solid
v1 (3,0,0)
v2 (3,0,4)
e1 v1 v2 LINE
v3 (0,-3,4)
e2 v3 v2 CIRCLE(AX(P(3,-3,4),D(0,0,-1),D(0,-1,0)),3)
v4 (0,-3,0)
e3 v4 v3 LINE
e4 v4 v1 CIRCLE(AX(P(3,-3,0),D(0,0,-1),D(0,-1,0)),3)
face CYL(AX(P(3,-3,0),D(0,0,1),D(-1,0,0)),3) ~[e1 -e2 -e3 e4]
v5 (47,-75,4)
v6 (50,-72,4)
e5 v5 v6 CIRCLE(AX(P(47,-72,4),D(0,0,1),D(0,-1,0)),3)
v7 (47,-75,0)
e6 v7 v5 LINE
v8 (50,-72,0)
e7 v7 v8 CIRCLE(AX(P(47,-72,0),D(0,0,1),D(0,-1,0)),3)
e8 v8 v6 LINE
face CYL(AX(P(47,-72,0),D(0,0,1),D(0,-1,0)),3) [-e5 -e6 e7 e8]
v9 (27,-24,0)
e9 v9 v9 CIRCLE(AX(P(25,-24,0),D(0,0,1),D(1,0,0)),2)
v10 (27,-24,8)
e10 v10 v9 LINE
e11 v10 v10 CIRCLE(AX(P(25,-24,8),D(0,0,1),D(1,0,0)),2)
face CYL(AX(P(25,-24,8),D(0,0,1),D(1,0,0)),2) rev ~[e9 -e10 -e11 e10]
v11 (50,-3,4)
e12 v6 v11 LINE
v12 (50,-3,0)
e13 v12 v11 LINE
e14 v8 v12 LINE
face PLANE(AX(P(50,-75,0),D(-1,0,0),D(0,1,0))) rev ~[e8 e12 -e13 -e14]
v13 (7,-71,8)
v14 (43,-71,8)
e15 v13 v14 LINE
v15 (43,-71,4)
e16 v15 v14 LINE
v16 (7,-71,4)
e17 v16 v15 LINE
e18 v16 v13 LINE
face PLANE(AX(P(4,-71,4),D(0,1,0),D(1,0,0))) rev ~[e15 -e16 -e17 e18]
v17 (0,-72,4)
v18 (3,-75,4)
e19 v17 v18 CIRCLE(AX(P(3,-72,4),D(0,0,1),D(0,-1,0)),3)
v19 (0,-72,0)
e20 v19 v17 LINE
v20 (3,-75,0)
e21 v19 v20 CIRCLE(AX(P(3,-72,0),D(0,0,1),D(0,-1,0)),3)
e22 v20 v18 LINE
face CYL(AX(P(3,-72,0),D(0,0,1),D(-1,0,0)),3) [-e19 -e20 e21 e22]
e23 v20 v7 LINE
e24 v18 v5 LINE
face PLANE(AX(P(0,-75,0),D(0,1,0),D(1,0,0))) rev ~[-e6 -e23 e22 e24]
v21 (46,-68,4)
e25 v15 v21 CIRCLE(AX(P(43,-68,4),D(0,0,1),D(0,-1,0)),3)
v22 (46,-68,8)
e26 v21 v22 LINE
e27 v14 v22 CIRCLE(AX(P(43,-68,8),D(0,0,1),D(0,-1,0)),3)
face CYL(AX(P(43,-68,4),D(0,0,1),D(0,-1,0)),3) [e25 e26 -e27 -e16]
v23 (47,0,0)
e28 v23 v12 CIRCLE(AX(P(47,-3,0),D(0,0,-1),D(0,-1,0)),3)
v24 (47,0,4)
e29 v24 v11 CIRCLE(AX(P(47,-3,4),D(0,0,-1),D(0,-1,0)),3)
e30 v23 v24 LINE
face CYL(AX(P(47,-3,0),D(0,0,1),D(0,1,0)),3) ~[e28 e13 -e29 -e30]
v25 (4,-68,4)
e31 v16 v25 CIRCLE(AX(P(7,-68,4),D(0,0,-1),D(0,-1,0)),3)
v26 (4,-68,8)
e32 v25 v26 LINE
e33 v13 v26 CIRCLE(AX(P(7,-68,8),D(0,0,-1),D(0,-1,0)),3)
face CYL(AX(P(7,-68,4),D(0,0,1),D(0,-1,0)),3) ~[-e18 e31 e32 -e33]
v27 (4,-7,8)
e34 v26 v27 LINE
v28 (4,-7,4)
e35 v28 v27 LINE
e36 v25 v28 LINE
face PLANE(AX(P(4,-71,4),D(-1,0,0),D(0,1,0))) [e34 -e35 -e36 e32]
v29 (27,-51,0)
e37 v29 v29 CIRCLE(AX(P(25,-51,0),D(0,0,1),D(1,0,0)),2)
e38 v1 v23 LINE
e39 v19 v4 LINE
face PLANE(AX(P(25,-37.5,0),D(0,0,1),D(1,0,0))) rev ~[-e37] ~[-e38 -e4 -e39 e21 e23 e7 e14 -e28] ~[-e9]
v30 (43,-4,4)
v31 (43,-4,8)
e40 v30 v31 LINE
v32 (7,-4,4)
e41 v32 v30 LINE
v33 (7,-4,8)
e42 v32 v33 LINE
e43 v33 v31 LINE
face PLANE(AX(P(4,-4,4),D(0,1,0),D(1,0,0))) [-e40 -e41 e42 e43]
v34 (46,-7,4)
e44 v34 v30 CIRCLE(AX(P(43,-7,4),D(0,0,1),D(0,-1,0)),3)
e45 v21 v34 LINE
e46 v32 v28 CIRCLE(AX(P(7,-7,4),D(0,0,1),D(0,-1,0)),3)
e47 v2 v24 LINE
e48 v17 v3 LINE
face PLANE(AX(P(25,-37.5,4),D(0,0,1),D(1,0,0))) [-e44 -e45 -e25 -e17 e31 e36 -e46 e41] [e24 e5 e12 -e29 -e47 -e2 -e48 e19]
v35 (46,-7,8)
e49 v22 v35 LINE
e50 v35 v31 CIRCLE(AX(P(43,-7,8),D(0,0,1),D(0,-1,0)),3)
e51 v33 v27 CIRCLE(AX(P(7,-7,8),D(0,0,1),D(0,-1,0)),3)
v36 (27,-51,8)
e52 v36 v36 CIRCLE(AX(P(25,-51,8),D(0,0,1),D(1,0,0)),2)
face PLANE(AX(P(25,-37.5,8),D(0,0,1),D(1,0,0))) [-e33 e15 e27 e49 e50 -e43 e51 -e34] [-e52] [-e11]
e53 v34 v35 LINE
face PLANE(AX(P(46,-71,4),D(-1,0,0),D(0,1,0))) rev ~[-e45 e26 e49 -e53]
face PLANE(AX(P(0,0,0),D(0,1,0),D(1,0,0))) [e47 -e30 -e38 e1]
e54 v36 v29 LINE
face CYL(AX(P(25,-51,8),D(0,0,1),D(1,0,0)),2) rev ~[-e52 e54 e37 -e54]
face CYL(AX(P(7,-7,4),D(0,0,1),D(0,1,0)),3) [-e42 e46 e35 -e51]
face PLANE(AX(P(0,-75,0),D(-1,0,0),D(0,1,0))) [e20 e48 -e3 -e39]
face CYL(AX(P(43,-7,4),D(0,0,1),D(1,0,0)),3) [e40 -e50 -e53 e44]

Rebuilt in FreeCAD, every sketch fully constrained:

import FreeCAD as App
import Part
import Sketcher
Q = App.Units.Quantity


def edges_at(feature, points):
    """Names of the edges that pass closest to the given points."""
    edges = feature.Shape.Edges
    near = lambda p: min(range(len(edges)), key=lambda i: edges[i].distToShape(Part.Vertex(*p))[0])
    return sorted({f"Edge{near(p) + 1}" for p in points})


def add_polygon(sketch, points):
    """Adds a closed chain of lines whose ends are joined by coincident constraints."""
    first, n = sketch.GeometryCount, len(points)
    for a, b in zip(points, points[1:] + points[:1]):
        sketch.addGeometry(Part.LineSegment(App.Vector(*a, 0), App.Vector(*b, 0)), False)
    for i in range(n):
        sketch.addConstraint(Sketcher.Constraint("Coincident", first + i, 2, first + (i + 1) % n, 1))

doc = App.newDocument("Part")
params = doc.addObject("Spreadsheet::Sheet", "Params")
for row, (alias, value) in enumerate([
    ("sketch1_width", "50 mm"),
    ("sketch1_height", "75 mm"),
    ("pad1_length", "4 mm"),
    ("sketch2_width", "42 mm"),
    ("sketch2_height", "67 mm"),
    ("pad2_length", "4 mm"),
    ("fillet_radius", "3 mm"),
    ("sketch3_diameter", "4 mm"),
    ("pocket1_length", "25 mm"),
], start=1):
    params.set(f"A{row}", alias)
    params.set(f"B{row}", "=" + value)
    params.setAlias(f"B{row}", alias)

body = doc.addObject("PartDesign::Body", "Body")

# Sketch on XY plane
sketch1 = body.newObject("Sketcher::SketchObject", "Sketch")
sketch1.AttachmentSupport = (doc.getObject("XY_Plane"), [""])
sketch1.MapMode = "FlatFace"
add_polygon(sketch1, [(0, 0), (0, -75), (50, -75), (50, 0)])  # lines 0-3
sketch1.addConstraint(Sketcher.Constraint("Vertical", 0))
sketch1.addConstraint(Sketcher.Constraint("Horizontal", 1))
sketch1.addConstraint(Sketcher.Constraint("Vertical", 2))
sketch1.addConstraint(Sketcher.Constraint("Horizontal", 3))
sketch1.addConstraint(Sketcher.Constraint("Coincident", 3, 2, -1, 1))
sketch1.addConstraint(Sketcher.Constraint("DistanceX", 1, 1, 1, 2, Q("50 mm")))
sketch1.addConstraint(Sketcher.Constraint("DistanceY", 0, 2, 0, 1, Q("75 mm")))
sketch1.setExpression("Constraints[9]", "Params.sketch1_width")
sketch1.setExpression("Constraints[10]", "Params.sketch1_height")
pad1 = body.newObject("PartDesign::Pad", "Pad")
pad1.Profile = sketch1
pad1.setExpression("Length", "Params.pad1_length")

# Sketch on XY plane
sketch2 = body.newObject("Sketcher::SketchObject", "Sketch001")
sketch2.AttachmentSupport = (doc.getObject("XY_Plane"), [""])
sketch2.MapMode = "FlatFace"
sketch2.AttachmentOffset = App.Placement(App.Vector(0, 0, 4), App.Rotation())
add_polygon(sketch2, [(4, -4), (4, -71), (46, -71), (46, -4)])  # lines 0-3
sketch2.addConstraint(Sketcher.Constraint("Vertical", 0))
sketch2.addConstraint(Sketcher.Constraint("Horizontal", 1))
sketch2.addConstraint(Sketcher.Constraint("Vertical", 2))
sketch2.addConstraint(Sketcher.Constraint("Horizontal", 3))
sketch2.addConstraint(Sketcher.Constraint("DistanceX", 1, 1, 1, 2, Q("42 mm")))
sketch2.addConstraint(Sketcher.Constraint("DistanceY", 0, 2, 0, 1, Q("67 mm")))
sketch2.addConstraint(Sketcher.Constraint("DistanceX", -1, 1, 0, 2, Q("4 mm")))
sketch2.addConstraint(Sketcher.Constraint("DistanceY", 0, 2, -1, 1, Q("71 mm")))
sketch2.setExpression("Constraints[8]", "Params.sketch2_width")
sketch2.setExpression("Constraints[9]", "Params.sketch2_height")
pad2 = body.newObject("PartDesign::Pad", "Pad001")
pad2.Profile = sketch2
pad2.setExpression("Length", "Params.pad2_length")
doc.recompute()

fillet = body.newObject("PartDesign::Fillet", "Fillet")
fillet.Base = (pad2, edges_at(pad2, [
    (50, 0, 2),
    (4, -4, 6),
    (0, 0, 2),
    (46, -4, 6),
    (46, -71, 6),
    (50, -75, 2),
    (4, -71, 6),
    (0, -75, 2),
]))
fillet.setExpression("Radius", "Params.fillet_radius")

# Sketch on XY plane
sketch3 = body.newObject("Sketcher::SketchObject", "Sketch002")
sketch3.AttachmentSupport = (doc.getObject("XY_Plane"), [""])
sketch3.MapMode = "FlatFace"
sketch3.AttachmentOffset = App.Placement(App.Vector(0, 0, 8), App.Rotation())
sketch3.addGeometry(Part.Circle(App.Vector(25, -51, 0), App.Vector(0, 0, 1), 2), False)
sketch3.addGeometry(Part.Circle(App.Vector(25, -24, 0), App.Vector(0, 0, 1), 2), False)
sketch3.addConstraint(Sketcher.Constraint("Equal", 0, 1))
sketch3.addConstraint(Sketcher.Constraint("Vertical", 0, 3, 1, 3))
sketch3.addConstraint(Sketcher.Constraint("Diameter", 0, Q("4 mm")))
sketch3.addConstraint(Sketcher.Constraint("DistanceX", -1, 1, 0, 3, Q("25 mm")))
sketch3.addConstraint(Sketcher.Constraint("DistanceY", 0, 3, -1, 1, Q("51 mm")))
sketch3.addConstraint(Sketcher.Constraint("DistanceY", 1, 3, -1, 1, Q("24 mm")))
sketch3.setExpression("Constraints[2]", "Params.sketch3_diameter")
pocket1 = body.newObject("PartDesign::Pocket", "Pocket")
pocket1.Profile = sketch3
pocket1.setExpression("Length", "Params.pocket1_length")

doc.recompute()
